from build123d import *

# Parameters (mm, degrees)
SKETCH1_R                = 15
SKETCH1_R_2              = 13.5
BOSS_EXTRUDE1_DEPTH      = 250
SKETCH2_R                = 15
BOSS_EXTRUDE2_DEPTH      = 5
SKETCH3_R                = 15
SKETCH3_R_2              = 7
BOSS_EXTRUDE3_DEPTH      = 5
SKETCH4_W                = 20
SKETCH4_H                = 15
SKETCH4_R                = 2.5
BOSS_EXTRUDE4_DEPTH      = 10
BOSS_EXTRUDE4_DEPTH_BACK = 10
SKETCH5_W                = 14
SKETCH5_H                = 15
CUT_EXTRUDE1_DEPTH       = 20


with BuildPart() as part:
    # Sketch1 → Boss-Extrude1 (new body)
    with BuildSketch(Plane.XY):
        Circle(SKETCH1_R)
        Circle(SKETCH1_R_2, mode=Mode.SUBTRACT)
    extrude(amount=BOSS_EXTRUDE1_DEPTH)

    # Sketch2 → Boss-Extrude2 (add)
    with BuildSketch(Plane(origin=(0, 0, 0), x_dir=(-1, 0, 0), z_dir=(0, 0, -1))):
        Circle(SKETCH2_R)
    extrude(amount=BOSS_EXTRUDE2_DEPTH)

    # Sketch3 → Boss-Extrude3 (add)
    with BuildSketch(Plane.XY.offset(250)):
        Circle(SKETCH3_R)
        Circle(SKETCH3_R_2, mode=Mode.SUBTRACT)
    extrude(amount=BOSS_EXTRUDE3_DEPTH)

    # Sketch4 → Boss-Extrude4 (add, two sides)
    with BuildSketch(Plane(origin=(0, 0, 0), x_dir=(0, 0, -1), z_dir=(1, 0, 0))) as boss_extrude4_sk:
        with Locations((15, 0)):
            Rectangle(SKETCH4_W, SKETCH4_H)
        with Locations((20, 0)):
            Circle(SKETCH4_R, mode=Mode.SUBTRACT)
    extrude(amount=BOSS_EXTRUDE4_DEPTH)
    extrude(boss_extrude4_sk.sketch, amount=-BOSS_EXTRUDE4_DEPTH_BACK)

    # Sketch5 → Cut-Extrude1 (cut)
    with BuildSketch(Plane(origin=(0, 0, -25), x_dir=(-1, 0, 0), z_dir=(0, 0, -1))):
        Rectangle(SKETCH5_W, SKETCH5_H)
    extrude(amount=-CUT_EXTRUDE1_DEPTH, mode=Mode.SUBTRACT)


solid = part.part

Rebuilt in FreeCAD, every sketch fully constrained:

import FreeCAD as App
import Part
import Sketcher
from FreeCAD import Vector
Q = App.Units.Quantity

doc = App.newDocument("Part")
body = doc.addObject("PartDesign::Body", "Body")

# Sketch on XY plane
sketch1 = body.newObject("Sketcher::SketchObject", "Sketch")
sketch1.AttachmentSupport = (doc.getObject("XY_Plane"), [""])
sketch1.MapMode = "FlatFace"
sketch1.addGeometry([
    Part.Circle(Vector(0, 0, 0), Vector(0, 0, 1), 15),
    Part.Circle(Vector(0, 0, 0), Vector(0, 0, 1), 13.5),
], False)
sketch1.addConstraint([
    Sketcher.Constraint("Coincident", 0, 3, -1, 1),
    Sketcher.Constraint("Coincident", 1, 3, -1, 1),
    Sketcher.Constraint("Diameter", 0, Q("30 mm")),
    Sketcher.Constraint("Diameter", 1, Q("27 mm")),
])
pad1 = body.newObject("PartDesign::Pad", "Pad")
pad1.Profile = sketch1
pad1.Length = 250

# Sketch on XY plane
sketch2 = body.newObject("Sketcher::SketchObject", "Sketch001")
sketch2.AttachmentSupport = (doc.getObject("XY_Plane"), [""])
sketch2.MapMode = "FlatFace"
sketch2.addGeometry(Part.Circle(Vector(0, 0, 0), Vector(0, 0, 1), 15), False)
sketch2.addConstraint([
    Sketcher.Constraint("Coincident", 0, 3, -1, 1),
    Sketcher.Constraint("Diameter", 0, Q("30 mm")),
])
pad2 = body.newObject("PartDesign::Pad", "Pad001")
pad2.Profile = sketch2
pad2.Length = 5
pad2.Reversed = True

# Sketch on XY plane
sketch3 = body.newObject("Sketcher::SketchObject", "Sketch002")
sketch3.AttachmentSupport = (doc.getObject("XY_Plane"), [""])
sketch3.MapMode = "FlatFace"
sketch3.AttachmentOffset = App.Placement(Vector(0, 0, 250), App.Rotation())
sketch3.addGeometry([
    Part.Circle(Vector(0, 0, 0), Vector(0, 0, 1), 15),
    Part.Circle(Vector(0, 0, 0), Vector(0, 0, 1), 7),
], False)
sketch3.addConstraint([
    Sketcher.Constraint("Coincident", 0, 3, -1, 1),
    Sketcher.Constraint("Coincident", 1, 3, -1, 1),
    Sketcher.Constraint("Diameter", 0, Q("30 mm")),
    Sketcher.Constraint("Diameter", 1, Q("14 mm")),
])
pad3 = body.newObject("PartDesign::Pad", "Pad002")
pad3.Profile = sketch3
pad3.Length = 5

# Sketch on YZ plane
sketch4 = body.newObject("Sketcher::SketchObject", "Sketch003")
sketch4.AttachmentSupport = (doc.getObject("YZ_Plane"), [""])
sketch4.MapMode = "FlatFace"
sketch4.addGeometry([
    Part.LineSegment(Vector(7.5, -5, 0), Vector(-7.5, -5, 0)),  # 0
    Part.LineSegment(Vector(-7.5, -5, 0), Vector(-7.5, -25, 0)),  # 1
    Part.LineSegment(Vector(-7.5, -25, 0), Vector(7.5, -25, 0)),  # 2
    Part.LineSegment(Vector(7.5, -25, 0), Vector(7.5, -5, 0)),  # 3
    Part.Circle(Vector(0, -20, 0), Vector(0, 0, 1), 2.5),  # 4
], False)
sketch4.addConstraint([
    Sketcher.Constraint("Coincident", 0, 2, 1, 1),
    Sketcher.Constraint("Coincident", 1, 2, 2, 1),
    Sketcher.Constraint("Coincident", 2, 2, 3, 1),
    Sketcher.Constraint("Coincident", 3, 2, 0, 1),
    Sketcher.Constraint("Horizontal", 0),
    Sketcher.Constraint("Vertical", 1),
    Sketcher.Constraint("Horizontal", 2),
    Sketcher.Constraint("Vertical", 3),
    Sketcher.Constraint("PointOnObject", 4, 3, -2),
    Sketcher.Constraint("Diameter", 4, Q("5 mm")),
    Sketcher.Constraint("DistanceX", 0, 2, 0, 1, Q("15 mm")),
    Sketcher.Constraint("DistanceY", 1, 2, 1, 1, Q("20 mm")),
    Sketcher.Constraint("DistanceY", 4, 3, -1, 1, Q("20 mm")),
    Sketcher.Constraint("DistanceY", 0, 2, -1, 1, Q("5 mm")),
    Sketcher.Constraint("DistanceX", 0, 2, -1, 1, Q("7.5 mm")),
])
pad4 = body.newObject("PartDesign::Pad", "Pad003")
pad4.Profile = sketch4
pad4.Type = "TwoLengths"
pad4.Length = 10
pad4.Length2 = 10

# Sketch on XY plane
sketch5 = body.newObject("Sketcher::SketchObject", "Sketch004")
sketch5.AttachmentSupport = (doc.getObject("XY_Plane"), [""])
sketch5.MapMode = "FlatFace"
sketch5.AttachmentOffset = App.Placement(Vector(0, 0, -25), App.Rotation())
sketch5.addGeometry([
    Part.LineSegment(Vector(7, 7.5, 0), Vector(7, -7.5, 0)),
    Part.LineSegment(Vector(7, -7.5, 0), Vector(-7, -7.5, 0)),
    Part.LineSegment(Vector(-7, -7.5, 0), Vector(-7, 7.5, 0)),
    Part.LineSegment(Vector(-7, 7.5, 0), Vector(7, 7.5, 0)),
], False)
sketch5.addConstraint([
    Sketcher.Constraint("Coincident", 0, 2, 1, 1),
    Sketcher.Constraint("Coincident", 1, 2, 2, 1),
    Sketcher.Constraint("Coincident", 2, 2, 3, 1),
    Sketcher.Constraint("Coincident", 3, 2, 0, 1),
    Sketcher.Constraint("Vertical", 0),
    Sketcher.Constraint("Horizontal", 1),
    Sketcher.Constraint("Vertical", 2),
    Sketcher.Constraint("Horizontal", 3),
    Sketcher.Constraint("Symmetric", 0, 2, 2, 2, -1, 1),
    Sketcher.Constraint("DistanceX", 1, 2, 1, 1, Q("14 mm")),
    Sketcher.Constraint("DistanceY", 0, 2, 0, 1, Q("15 mm")),
])
pocket1 = body.newObject("PartDesign::Pocket", "Pocket")
pocket1.Profile = sketch5
pocket1.Length = 20
pocket1.Reversed = True

doc.recompute()
